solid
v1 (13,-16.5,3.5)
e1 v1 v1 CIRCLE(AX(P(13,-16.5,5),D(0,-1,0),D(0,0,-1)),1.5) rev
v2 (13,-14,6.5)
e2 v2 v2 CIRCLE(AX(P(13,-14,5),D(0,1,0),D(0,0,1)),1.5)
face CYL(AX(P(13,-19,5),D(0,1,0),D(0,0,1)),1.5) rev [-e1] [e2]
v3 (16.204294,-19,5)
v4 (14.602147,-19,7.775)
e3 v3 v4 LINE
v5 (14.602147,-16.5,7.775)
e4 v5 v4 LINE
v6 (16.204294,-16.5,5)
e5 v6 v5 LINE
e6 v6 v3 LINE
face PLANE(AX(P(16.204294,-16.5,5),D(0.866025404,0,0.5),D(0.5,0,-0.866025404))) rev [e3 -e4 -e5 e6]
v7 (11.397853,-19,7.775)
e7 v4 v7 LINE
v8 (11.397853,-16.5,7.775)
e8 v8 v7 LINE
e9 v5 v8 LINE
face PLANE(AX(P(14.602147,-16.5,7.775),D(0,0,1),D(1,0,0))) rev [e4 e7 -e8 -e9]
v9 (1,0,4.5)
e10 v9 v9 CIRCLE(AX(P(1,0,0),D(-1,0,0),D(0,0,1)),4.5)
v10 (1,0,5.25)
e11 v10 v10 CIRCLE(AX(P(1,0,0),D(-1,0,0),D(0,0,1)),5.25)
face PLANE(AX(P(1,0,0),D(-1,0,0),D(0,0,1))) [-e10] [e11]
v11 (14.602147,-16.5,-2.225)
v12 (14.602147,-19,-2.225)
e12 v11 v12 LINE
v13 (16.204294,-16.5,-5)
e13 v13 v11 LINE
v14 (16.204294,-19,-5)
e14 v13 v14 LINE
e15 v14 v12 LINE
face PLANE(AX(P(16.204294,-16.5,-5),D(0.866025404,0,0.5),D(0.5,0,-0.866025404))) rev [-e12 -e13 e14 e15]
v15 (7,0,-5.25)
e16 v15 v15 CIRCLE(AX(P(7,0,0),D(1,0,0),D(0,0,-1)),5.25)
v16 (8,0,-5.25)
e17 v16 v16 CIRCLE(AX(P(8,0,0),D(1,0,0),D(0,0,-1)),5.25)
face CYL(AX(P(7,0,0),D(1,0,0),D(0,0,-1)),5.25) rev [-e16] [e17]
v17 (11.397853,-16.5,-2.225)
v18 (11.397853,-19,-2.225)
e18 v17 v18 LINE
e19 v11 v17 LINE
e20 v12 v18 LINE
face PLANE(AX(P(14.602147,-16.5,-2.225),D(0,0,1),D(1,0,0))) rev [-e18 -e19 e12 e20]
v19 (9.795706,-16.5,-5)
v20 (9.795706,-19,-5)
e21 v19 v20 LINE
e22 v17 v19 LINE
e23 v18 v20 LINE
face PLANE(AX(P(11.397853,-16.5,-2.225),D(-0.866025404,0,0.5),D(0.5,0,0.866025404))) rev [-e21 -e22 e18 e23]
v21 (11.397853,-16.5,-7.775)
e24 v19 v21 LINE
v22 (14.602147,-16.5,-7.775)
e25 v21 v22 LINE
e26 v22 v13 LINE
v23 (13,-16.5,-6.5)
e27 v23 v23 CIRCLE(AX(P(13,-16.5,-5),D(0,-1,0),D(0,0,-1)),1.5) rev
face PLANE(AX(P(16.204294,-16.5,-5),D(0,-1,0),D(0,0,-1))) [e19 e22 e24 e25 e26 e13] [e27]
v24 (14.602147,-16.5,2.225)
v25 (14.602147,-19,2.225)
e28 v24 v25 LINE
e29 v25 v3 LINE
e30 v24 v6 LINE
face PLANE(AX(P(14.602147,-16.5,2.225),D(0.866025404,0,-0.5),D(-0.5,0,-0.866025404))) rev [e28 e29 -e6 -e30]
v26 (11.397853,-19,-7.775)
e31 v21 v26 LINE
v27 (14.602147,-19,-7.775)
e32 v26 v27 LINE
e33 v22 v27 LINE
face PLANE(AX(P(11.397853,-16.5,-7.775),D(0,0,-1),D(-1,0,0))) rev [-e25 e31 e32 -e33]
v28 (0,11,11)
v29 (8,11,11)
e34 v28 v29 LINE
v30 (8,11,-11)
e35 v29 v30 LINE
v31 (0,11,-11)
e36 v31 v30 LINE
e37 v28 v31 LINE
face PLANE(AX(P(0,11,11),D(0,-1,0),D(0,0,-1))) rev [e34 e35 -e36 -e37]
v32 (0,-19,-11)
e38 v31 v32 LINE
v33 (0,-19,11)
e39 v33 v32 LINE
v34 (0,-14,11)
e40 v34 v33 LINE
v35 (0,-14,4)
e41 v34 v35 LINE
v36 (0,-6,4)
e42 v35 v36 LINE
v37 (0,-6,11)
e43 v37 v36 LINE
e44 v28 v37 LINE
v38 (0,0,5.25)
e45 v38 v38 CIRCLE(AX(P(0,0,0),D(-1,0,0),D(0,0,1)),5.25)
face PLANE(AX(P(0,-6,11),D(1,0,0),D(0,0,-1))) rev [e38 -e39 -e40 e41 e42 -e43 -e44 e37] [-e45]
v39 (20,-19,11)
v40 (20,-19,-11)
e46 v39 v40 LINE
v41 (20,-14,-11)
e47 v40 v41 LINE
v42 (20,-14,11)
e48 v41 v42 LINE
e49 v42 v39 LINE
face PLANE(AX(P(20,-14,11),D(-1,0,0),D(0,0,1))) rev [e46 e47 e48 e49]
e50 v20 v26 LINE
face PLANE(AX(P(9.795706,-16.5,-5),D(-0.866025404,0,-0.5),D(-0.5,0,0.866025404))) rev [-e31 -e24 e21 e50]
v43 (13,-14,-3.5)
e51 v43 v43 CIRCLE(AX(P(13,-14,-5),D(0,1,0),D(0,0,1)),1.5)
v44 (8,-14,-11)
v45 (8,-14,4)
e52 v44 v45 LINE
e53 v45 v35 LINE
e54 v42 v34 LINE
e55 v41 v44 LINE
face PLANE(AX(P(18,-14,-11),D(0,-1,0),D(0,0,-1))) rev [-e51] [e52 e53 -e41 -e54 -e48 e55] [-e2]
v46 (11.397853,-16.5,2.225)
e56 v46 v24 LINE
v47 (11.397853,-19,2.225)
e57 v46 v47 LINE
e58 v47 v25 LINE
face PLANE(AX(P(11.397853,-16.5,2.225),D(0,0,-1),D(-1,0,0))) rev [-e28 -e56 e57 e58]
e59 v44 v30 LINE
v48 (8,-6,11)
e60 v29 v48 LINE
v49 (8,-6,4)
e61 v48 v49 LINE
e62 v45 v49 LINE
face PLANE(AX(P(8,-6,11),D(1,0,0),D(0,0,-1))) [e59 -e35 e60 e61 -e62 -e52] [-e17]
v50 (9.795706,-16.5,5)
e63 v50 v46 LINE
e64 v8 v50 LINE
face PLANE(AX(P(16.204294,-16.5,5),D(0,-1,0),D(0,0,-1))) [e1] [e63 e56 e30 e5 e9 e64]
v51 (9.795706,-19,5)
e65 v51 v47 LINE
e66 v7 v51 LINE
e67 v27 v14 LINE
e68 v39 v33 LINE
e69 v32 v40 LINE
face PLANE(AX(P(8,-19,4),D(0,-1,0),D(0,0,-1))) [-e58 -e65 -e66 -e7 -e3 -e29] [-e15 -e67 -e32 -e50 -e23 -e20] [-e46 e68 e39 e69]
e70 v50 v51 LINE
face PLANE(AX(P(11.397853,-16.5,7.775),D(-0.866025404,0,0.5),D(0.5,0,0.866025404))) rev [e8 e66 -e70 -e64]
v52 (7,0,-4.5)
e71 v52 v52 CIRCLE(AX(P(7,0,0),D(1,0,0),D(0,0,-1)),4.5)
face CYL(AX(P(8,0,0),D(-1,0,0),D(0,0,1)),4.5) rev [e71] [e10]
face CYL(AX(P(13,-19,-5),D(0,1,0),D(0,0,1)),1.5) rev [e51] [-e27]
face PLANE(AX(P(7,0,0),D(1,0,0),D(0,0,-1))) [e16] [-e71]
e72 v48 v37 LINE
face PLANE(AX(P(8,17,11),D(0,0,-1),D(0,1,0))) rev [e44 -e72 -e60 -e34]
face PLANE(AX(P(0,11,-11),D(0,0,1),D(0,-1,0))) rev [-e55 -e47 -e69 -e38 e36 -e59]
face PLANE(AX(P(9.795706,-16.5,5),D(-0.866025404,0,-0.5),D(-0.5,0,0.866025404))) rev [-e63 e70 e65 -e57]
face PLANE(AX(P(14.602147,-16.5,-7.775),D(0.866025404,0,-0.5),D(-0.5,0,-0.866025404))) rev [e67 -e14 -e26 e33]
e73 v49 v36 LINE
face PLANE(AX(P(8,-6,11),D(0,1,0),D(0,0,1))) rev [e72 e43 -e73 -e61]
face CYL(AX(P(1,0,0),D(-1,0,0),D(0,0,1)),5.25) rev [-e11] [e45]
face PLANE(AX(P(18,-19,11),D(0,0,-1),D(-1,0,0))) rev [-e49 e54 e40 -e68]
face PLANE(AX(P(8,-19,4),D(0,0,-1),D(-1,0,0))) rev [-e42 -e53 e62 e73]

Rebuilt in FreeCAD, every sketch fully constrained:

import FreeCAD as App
import Part
import Sketcher
Q = App.Units.Quantity


def add_polygon(sketch, points):
    """Adds a closed chain of lines whose ends are joined by coincident constraints."""
    first, n = sketch.GeometryCount, len(points)
    for a, b in zip(points, points[1:] + points[:1]):
        sketch.addGeometry(Part.LineSegment(App.Vector(*a, 0), App.Vector(*b, 0)), False)
    for i in range(n):
        sketch.addConstraint(Sketcher.Constraint("Coincident", first + i, 2, first + (i + 1) % n, 1))

doc = App.newDocument("Part")
body = doc.addObject("PartDesign::Body", "Body")

sketch1 = body.newObject("Sketcher::SketchObject", "Sketch")
sketch1.AttachmentSupport = (doc.getObject("YZ_Plane"), [""])
sketch1.MapMode = "FlatFace"
add_polygon(sketch1, [(17, 11), (-6, 11), (-6, -29), (17, -29)])
sketch1.addGeometry(Part.Circle(App.Vector(0, 0, 0), App.Vector(0, 0, 1), 4.5), False)
sketch1.addGeometry(Part.Circle(App.Vector(6, -18, 0), App.Vector(0, 0, 1), 4.5), False)
sketch1.addConstraint([
    Sketcher.Constraint("Horizontal", 0),
    Sketcher.Constraint("Vertical", 1),
    Sketcher.Constraint("Horizontal", 2),
    Sketcher.Constraint("Vertical", 3),
    Sketcher.Constraint("Coincident", 4, 3, -1, 1),
    Sketcher.Constraint("Equal", 4, 5),
    Sketcher.Constraint("Diameter", 4, Q("9 mm")),
    Sketcher.Constraint("DistanceX", 0, 2, 0, 1, Q("23 mm")),
    Sketcher.Constraint("DistanceY", 1, 2, 1, 1, Q("40 mm")),
    Sketcher.Constraint("DistanceX", -1, 1, 5, 3, Q("6 mm")),
    Sketcher.Constraint("DistanceY", 5, 3, -1, 1, Q("18 mm")),
    Sketcher.Constraint("DistanceX", 0, 2, -1, 1, Q("6 mm")),
    Sketcher.Constraint("DistanceY", -1, 1, 0, 2, Q("11 mm")),
])
pad1 = body.newObject("PartDesign::Pad", "Pad")
pad1.Profile = sketch1
pad1.Length = 8

sketch2 = body.newObject("Sketcher::SketchObject", "Sketch001")
sketch2.AttachmentSupport = (doc.getObject("YZ_Plane"), [""])
sketch2.MapMode = "FlatFace"
sketch2.addGeometry([
    Part.Circle(App.Vector(6, -18, 0), App.Vector(0, 0, 1), 5.25),
    Part.Circle(App.Vector(0, 0, 0), App.Vector(0, 0, 1), 5.25),
], False)
sketch2.addConstraint([
    Sketcher.Constraint("Coincident", 1, 3, -1, 1),
    Sketcher.Constraint("Equal", 0, 1),
    Sketcher.Constraint("Diameter", 0, Q("10.5 mm")),
    Sketcher.Constraint("DistanceX", -1, 1, 0, 3, Q("6 mm")),
    Sketcher.Constraint("DistanceY", 0, 3, -1, 1, Q("18 mm")),
])
pocket1 = body.newObject("PartDesign::Pocket", "Pocket")
pocket1.Profile = sketch2
pocket1.Length = 1
pocket1.Reversed = True

sketch3 = body.newObject("Sketcher::SketchObject", "Sketch002")
sketch3.AttachmentSupport = (doc.getObject("YZ_Plane"), [""])
sketch3.MapMode = "FlatFace"
sketch3.AttachmentOffset = App.Placement(App.Vector(0, 0, 8), App.Rotation())
add_polygon(sketch3, [(17, -29), (17, 11), (11, 11), (11, -11), (-6, -11), (-6, -29)])
sketch3.addConstraint([
    Sketcher.Constraint("Vertical", 0),
    Sketcher.Constraint("Horizontal", 1),
    Sketcher.Constraint("Vertical", 2),
    Sketcher.Constraint("Horizontal", 3),
    Sketcher.Constraint("Vertical", 4),
    Sketcher.Constraint("Horizontal", 5),
    Sketcher.Constraint("DistanceX", 1, 2, 1, 1, Q("6 mm")),
    Sketcher.Constraint("DistanceX", 3, 2, 3, 1, Q("17 mm")),
    Sketcher.Constraint("DistanceY", 0, 1, 0, 2, Q("40 mm")),
    Sketcher.Constraint("DistanceY", 2, 2, 2, 1, Q("22 mm")),
    Sketcher.Constraint("DistanceX", -1, 1, 0, 2, Q("17 mm")),
    Sketcher.Constraint("DistanceY", -1, 1, 0, 2, Q("11 mm")),
])
pocket2 = body.newObject("PartDesign::Pocket", "Pocket001")
pocket2.Profile = sketch3
pocket2.Type = "ThroughAll"

sketch4 = body.newObject("Sketcher::SketchObject", "Sketch003")
sketch4.AttachmentSupport = (doc.getObject("YZ_Plane"), [""])
sketch4.MapMode = "FlatFace"
sketch4.AttachmentOffset = App.Placement(App.Vector(0, 0, 8), App.Rotation())
sketch4.addGeometry(Part.Circle(App.Vector(0, 0, 0), App.Vector(0, 0, 1), 5.25), False)
sketch4.addConstraint([
    Sketcher.Constraint("Coincident", 0, 3, -1, 1),
    Sketcher.Constraint("Diameter", 0, Q("10.5 mm")),
])
pocket3 = body.newObject("PartDesign::Pocket", "Pocket002")
pocket3.Profile = sketch4
pocket3.Length = 1

sketch5 = body.newObject("Sketcher::SketchObject", "Sketch004")
sketch5.AttachmentSupport = (doc.getObject("YZ_Plane"), [""])
sketch5.MapMode = "FlatFace"
sketch5.AttachmentOffset = App.Placement(App.Vector(0, 0, 8), App.Rotation())
add_polygon(sketch5, [(-1, 11), (-6, 11), (-6, -11), (-1, -11)])
sketch5.addConstraint([
    Sketcher.Constraint("Horizontal", 0),
    Sketcher.Constraint("Vertical", 1),
    Sketcher.Constraint("Horizontal", 2),
    Sketcher.Constraint("Vertical", 3),
    Sketcher.Constraint("DistanceX", 0, 2, 0, 1, Q("5 mm")),
    Sketcher.Constraint("DistanceY", 1, 2, 1, 1, Q("22 mm")),
    Sketcher.Constraint("DistanceX", 0, 2, -1, 1, Q("6 mm")),
    Sketcher.Constraint("DistanceY", -1, 1, 0, 2, Q("11 mm")),
])
pad2 = body.newObject("PartDesign::Pad", "Pad001")
pad2.Profile = sketch5
pad2.Length = 6

sketch6 = body.newObject("Sketcher::SketchObject", "Sketch005")
sketch6.AttachmentSupport = (doc.getObject("XZ_Plane"), [""])
sketch6.MapMode = "FlatFace"
sketch6.AttachmentOffset = App.Placement(App.Vector(0, 0, 6), App.Rotation())
add_polygon(sketch6, [(3, -7), (3, -11), (14, -11), (14, -7)])
sketch6.addConstraint([
    Sketcher.Constraint("Vertical", 0),
    Sketcher.Constraint("Horizontal", 1),
    Sketcher.Constraint("Vertical", 2),
    Sketcher.Constraint("Horizontal", 3),
    Sketcher.Constraint("DistanceX", 1, 1, 1, 2, Q("11 mm")),
    Sketcher.Constraint("DistanceY", 0, 2, 0, 1, Q("4 mm")),
    Sketcher.Constraint("DistanceX", -1, 1, 0, 2, Q("3 mm")),
    Sketcher.Constraint("DistanceY", 0, 2, -1, 1, Q("11 mm")),
])
pad3 = body.newObject("PartDesign::Pad", "Pad002")
pad3.Profile = sketch6
pad3.Length = 4

sketch7 = body.newObject("Sketcher::SketchObject", "Sketch006")
sketch7.AttachmentSupport = (doc.getObject("XY_Plane"), [""])
sketch7.MapMode = "FlatFace"
sketch7.AttachmentOffset = App.Placement(App.Vector(0, 0, -11), App.Rotation())
add_polygon(sketch7, [(8, -1), (8, 11), (14, -1)])
sketch7.addConstraint([
    Sketcher.Constraint("Vertical", 0),
    Sketcher.Constraint("Horizontal", 2),
    Sketcher.Constraint("DistanceX", 2, 2, 2, 1, Q("6 mm")),
    Sketcher.Constraint("DistanceY", 0, 1, 0, 2, Q("12 mm")),
    Sketcher.Constraint("DistanceX", -1, 1, 0, 2, Q("8 mm")),
    Sketcher.Constraint("DistanceY", -1, 1, 0, 2, Q("11 mm")),
])
pad4 = body.newObject("PartDesign::Pad", "Pad003")
pad4.Profile = sketch7
pad4.Length = 3

sketch8 = body.newObject("Sketcher::SketchObject", "Sketch007")
sketch8.AttachmentSupport = (doc.getObject("XZ_Plane"), [""])
sketch8.MapMode = "FlatFace"
sketch8.AttachmentOffset = App.Placement(App.Vector(0, 0, 6), App.Rotation())
add_polygon(sketch8, [(0, 4), (0, -11), (8, -11), (8, 4)])
sketch8.addConstraint([
    Sketcher.Constraint("Vertical", 0),
    Sketcher.Constraint("Horizontal", 1),
    Sketcher.Constraint("Vertical", 2),
    Sketcher.Constraint("Horizontal", 3),
    Sketcher.Constraint("PointOnObject", 0, 2, -2),
    Sketcher.Constraint("DistanceX", 1, 1, 1, 2, Q("8 mm")),
    Sketcher.Constraint("DistanceY", 0, 2, 0, 1, Q("15 mm")),
    Sketcher.Constraint("DistanceY", 0, 2, -1, 1, Q("11 mm")),
])
pad5 = body.newObject("PartDesign::Pad", "Pad004")
pad5.Profile = sketch8
pad5.Length = 13

sketch9 = body.newObject("Sketcher::SketchObject", "Sketch008")
sketch9.AttachmentSupport = (doc.getObject("YZ_Plane"), [""])
sketch9.MapMode = "FlatFace"
sketch9.AttachmentOffset = App.Placement(App.Vector(0, 0, 8), App.Rotation())
add_polygon(sketch9, [(-14, 11), (-19, 11), (-19, -11), (-14, -11)])
sketch9.addConstraint([
    Sketcher.Constraint("Horizontal", 0),
    Sketcher.Constraint("Vertical", 1),
    Sketcher.Constraint("Horizontal", 2),
    Sketcher.Constraint("Vertical", 3),
    Sketcher.Constraint("DistanceX", 0, 2, 0, 1, Q("5 mm")),
    Sketcher.Constraint("DistanceY", 1, 2, 1, 1, Q("22 mm")),
    Sketcher.Constraint("DistanceX", 0, 2, -1, 1, Q("19 mm")),
    Sketcher.Constraint("DistanceY", -1, 1, 0, 2, Q("11 mm")),
])
pad6 = body.newObject("PartDesign::Pad", "Pad005")
pad6.Profile = sketch9
pad6.Length = 10

sketch10 = body.newObject("Sketcher::SketchObject", "Sketch009")
sketch10.AttachmentSupport = (doc.getObject("XZ_Plane"), [""])
sketch10.MapMode = "FlatFace"
sketch10.AttachmentOffset = App.Placement(App.Vector(0, 0, 1), App.Rotation())
add_polygon(sketch10, [(8, -11), (8, 11), (14, 11), (14, -11)])
sketch10.addConstraint([
    Sketcher.Constraint("Vertical", 0),
    Sketcher.Constraint("Horizontal", 1),
    Sketcher.Constraint("Vertical", 2),
    Sketcher.Constraint("Horizontal", 3),
    Sketcher.Constraint("DistanceX", 1, 1, 1, 2, Q("6 mm")),
    Sketcher.Constraint("DistanceY", 0, 1, 0, 2, Q("22 mm")),
    Sketcher.Constraint("DistanceX", -1, 1, 0, 2, Q("8 mm")),
    Sketcher.Constraint("DistanceY", -1, 1, 0, 2, Q("11 mm")),
])
pocket4 = body.newObject("PartDesign::Pocket", "Pocket003")
pocket4.Profile = sketch10
pocket4.Type = "TwoLengths"
pocket4.Length = 13
pocket4.Length2 = 10

sketch11 = body.newObject("Sketcher::SketchObject", "Sketch010")
sketch11.AttachmentSupport = (doc.getObject("XZ_Plane"), [""])
sketch11.MapMode = "FlatFace"
sketch11.AttachmentOffset = App.Placement(App.Vector(0, 0, 14), App.Rotation())
sketch11.addGeometry([
    Part.Circle(App.Vector(13, -5, 0), App.Vector(0, 0, 1), 1.5),
    Part.Circle(App.Vector(13, 5, 0), App.Vector(0, 0, 1), 1.5),
], False)
sketch11.addConstraint([
    Sketcher.Constraint("Equal", 0, 1),
    Sketcher.Constraint("Symmetric", 0, 3, 1, 3, -1),
    Sketcher.Constraint("Diameter", 0, Q("3 mm")),
    Sketcher.Constraint("DistanceX", -1, 1, 0, 3, Q("13 mm")),
    Sketcher.Constraint("DistanceY", 0, 3, -1, 1, Q("5 mm")),
])
pocket5 = body.newObject("PartDesign::Pocket", "Pocket004")
pocket5.Profile = sketch11
pocket5.Type = "ThroughAll"
pocket5.Reversed = True

sketch12 = body.newObject("Sketcher::SketchObject", "Sketch011")
sketch12.AttachmentSupport = (doc.getObject("XZ_Plane"), [""])
sketch12.MapMode = "FlatFace"
sketch12.AttachmentOffset = App.Placement(App.Vector(0, 0, 19), App.Rotation())
add_polygon(sketch12, [(16.204294, 5), (14.602147, 7.775), (11.397853, 7.775), (9.795706, 5), (11.397853, 2.225), (14.602147, 2.225)])
add_polygon(sketch12, [(16.204294, -5), (14.602147, -2.225), (11.397853, -2.225), (9.795706, -5), (11.397853, -7.775), (14.602147, -7.775)])
sketch12.addConstraint([
    Sketcher.Constraint("Horizontal", 1),
    Sketcher.Constraint("Horizontal", 4),
    Sketcher.Constraint("Horizontal", 7),
    Sketcher.Constraint("Horizontal", 10),
    Sketcher.Constraint("Symmetric", 4, 2, 6, 2, -1),
    Sketcher.Constraint("Symmetric", 2, 2, 8, 2, -1),
    Sketcher.Constraint("Symmetric", 1, 2, 9, 2, -1),
    Sketcher.Constraint("Symmetric", 5, 2, 11, 2, -1),
    Sketcher.Constraint("Parallel", 0, 3),
    Sketcher.Constraint("Parallel", 2, 5),
    Sketcher.Constraint("Parallel", 3, 6),
    Sketcher.Constraint("Parallel", 5, 8),
    Sketcher.Constraint("Parallel", 8, 11),
    Sketcher.Constraint("Horizontal", 2, 2, 5, 2),
    Sketcher.Constraint("Vertical", 1, 2, 3, 2),
    Sketcher.Constraint("Angle", 0, Q("120 deg")),
    Sketcher.Constraint("DistanceY", -1, 1, 2, 2, Q("5 mm")),
    Sketcher.Constraint("DistanceY", 3, 2, 1, 2, Q("5.55 mm")),
    Sketcher.Constraint("DistanceX", 1, 2, 1, 1, Q("3.204294 mm")),
    Sketcher.Constraint("DistanceX", -1, 1, 0, 2, Q("14.602147 mm")),
])
pocket6 = body.newObject("PartDesign::Pocket", "Pocket005")
pocket6.Profile = sketch12
pocket6.Length = 2.5

sketch13 = body.newObject("Sketcher::SketchObject", "Sketch012")
sketch13.AttachmentSupport = (doc.getObject("YZ_Plane"), [""])
sketch13.MapMode = "FlatFace"
sketch13.AttachmentOffset = App.Placement(App.Vector(0, 0, 18), App.Rotation())
add_polygon(sketch13, [(-14, 11), (-19, 11), (-19, -11), (-14, -11)])
sketch13.addConstraint([
    Sketcher.Constraint("Horizontal", 0),
    Sketcher.Constraint("Vertical", 1),
    Sketcher.Constraint("Horizontal", 2),
    Sketcher.Constraint("Vertical", 3),
    Sketcher.Constraint("DistanceX", 0, 2, 0, 1, Q("5 mm")),
    Sketcher.Constraint("DistanceY", 1, 2, 1, 1, Q("22 mm")),
    Sketcher.Constraint("DistanceX", 0, 2, -1, 1, Q("19 mm")),
    Sketcher.Constraint("DistanceY", -1, 1, 0, 2, Q("11 mm")),
])
pad7 = body.newObject("PartDesign::Pad", "Pad006")
pad7.Profile = sketch13
pad7.Length = 2

sketch14 = body.newObject("Sketcher::SketchObject", "Sketch013")
sketch14.AttachmentSupport = (doc.getObject("XY_Plane"), [""])
sketch14.MapMode = "FlatFace"
sketch14.AttachmentOffset = App.Placement(App.Vector(0, 0, 4), App.Rotation())
add_polygon(sketch14, [(0, -14), (0, -19), (8, -19), (8, -14)])
sketch14.addConstraint([
    Sketcher.Constraint("Vertical", 0),
    Sketcher.Constraint("Horizontal", 1),
    Sketcher.Constraint("Vertical", 2),
    Sketcher.Constraint("Horizontal", 3),
    Sketcher.Constraint("PointOnObject", 0, 2, -2),
    Sketcher.Constraint("DistanceX", 1, 1, 1, 2, Q("8 mm")),
    Sketcher.Constraint("DistanceY", 0, 2, 0, 1, Q("5 mm")),
    Sketcher.Constraint("DistanceY", 0, 2, -1, 1, Q("19 mm")),
])
pad8 = body.newObject("PartDesign::Pad", "Pad007")
pad8.Profile = sketch14
pad8.Length = 7

doc.recompute()
